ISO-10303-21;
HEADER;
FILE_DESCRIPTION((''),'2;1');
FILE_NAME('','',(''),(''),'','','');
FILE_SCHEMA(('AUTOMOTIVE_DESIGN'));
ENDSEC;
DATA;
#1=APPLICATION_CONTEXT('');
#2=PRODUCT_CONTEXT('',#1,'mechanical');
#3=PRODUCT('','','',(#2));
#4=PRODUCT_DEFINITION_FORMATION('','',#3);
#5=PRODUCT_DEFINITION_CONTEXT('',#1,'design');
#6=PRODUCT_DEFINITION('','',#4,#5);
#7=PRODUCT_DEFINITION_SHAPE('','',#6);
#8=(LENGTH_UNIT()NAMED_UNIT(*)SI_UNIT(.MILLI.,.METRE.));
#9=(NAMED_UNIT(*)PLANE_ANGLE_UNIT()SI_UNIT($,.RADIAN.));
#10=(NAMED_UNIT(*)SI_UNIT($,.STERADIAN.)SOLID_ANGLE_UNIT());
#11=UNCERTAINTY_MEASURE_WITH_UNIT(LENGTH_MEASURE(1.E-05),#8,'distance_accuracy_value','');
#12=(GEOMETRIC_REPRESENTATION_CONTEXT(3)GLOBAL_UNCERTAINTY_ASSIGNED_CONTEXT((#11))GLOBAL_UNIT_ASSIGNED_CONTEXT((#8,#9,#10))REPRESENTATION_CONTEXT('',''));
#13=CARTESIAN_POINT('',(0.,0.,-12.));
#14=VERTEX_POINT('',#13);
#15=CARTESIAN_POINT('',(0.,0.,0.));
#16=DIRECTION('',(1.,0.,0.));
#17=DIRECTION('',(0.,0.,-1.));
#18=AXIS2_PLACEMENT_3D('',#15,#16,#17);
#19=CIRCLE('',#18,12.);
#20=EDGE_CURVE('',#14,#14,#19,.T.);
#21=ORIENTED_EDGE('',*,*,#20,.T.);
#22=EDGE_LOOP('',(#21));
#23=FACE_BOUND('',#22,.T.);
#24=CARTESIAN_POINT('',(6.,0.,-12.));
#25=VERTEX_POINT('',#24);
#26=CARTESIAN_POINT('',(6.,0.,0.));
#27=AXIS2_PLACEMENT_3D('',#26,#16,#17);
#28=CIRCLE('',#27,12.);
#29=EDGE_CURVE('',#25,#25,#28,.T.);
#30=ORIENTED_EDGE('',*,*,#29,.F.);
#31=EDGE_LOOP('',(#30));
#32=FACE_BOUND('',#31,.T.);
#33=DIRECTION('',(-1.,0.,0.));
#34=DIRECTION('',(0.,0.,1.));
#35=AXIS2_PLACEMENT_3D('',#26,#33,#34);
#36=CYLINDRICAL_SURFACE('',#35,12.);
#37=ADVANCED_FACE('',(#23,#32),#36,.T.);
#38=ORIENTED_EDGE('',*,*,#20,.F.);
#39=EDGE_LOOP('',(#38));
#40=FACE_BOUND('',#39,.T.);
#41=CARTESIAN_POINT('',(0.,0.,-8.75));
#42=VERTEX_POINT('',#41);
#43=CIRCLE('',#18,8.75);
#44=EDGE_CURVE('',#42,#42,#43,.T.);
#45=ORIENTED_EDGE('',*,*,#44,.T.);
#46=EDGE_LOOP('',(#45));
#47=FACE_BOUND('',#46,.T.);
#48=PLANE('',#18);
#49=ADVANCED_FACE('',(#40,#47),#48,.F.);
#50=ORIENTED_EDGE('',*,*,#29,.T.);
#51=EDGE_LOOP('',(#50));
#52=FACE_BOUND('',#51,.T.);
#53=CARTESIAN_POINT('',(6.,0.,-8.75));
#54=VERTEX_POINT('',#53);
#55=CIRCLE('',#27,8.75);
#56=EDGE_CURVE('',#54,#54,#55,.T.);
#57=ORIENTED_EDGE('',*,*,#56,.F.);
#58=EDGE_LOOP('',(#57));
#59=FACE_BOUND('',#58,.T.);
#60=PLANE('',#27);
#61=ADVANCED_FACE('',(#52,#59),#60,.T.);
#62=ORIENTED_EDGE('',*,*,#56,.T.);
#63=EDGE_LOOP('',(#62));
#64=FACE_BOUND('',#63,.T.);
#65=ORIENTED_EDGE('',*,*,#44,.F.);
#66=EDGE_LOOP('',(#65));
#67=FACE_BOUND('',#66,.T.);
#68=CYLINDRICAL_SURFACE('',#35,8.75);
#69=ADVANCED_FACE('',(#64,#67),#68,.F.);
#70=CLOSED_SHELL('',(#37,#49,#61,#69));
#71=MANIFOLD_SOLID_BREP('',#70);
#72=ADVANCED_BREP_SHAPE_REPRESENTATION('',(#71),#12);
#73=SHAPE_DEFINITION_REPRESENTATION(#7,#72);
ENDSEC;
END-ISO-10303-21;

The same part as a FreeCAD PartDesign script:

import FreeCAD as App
import Part
import Sketcher
from FreeCAD import Vector

doc = App.newDocument("Part")
body = doc.addObject("PartDesign::Body", "Body")

sketch1 = doc.addObject("Sketcher::SketchObject", "Sketch")
body.addObject(sketch1)
sketch1.AttachmentSupport = (doc.YZ_Plane, [""])
sketch1.MapMode = "FlatFace"
sketch1.addGeometry([
    Part.Circle(Vector(0, 0, 0), Vector(0, 0, 1), 12),
    Part.Circle(Vector(0, 0, 0), Vector(0, 0, 1), 9),
], False)
sketch1.addConstraint([
    Sketcher.Constraint("Coincident", 0, 3, -1, 1),
    Sketcher.Constraint("Coincident", 1, 3, -1, 1),
    Sketcher.Constraint("Diameter", 0, 24.0),
    Sketcher.Constraint("Diameter", 1, 17.5),
])
pad1 = doc.addObject("PartDesign::Pad", "Pad")
body.addObject(pad1)
pad1.Profile = sketch1
pad1.Length = 6

doc.recompute()
